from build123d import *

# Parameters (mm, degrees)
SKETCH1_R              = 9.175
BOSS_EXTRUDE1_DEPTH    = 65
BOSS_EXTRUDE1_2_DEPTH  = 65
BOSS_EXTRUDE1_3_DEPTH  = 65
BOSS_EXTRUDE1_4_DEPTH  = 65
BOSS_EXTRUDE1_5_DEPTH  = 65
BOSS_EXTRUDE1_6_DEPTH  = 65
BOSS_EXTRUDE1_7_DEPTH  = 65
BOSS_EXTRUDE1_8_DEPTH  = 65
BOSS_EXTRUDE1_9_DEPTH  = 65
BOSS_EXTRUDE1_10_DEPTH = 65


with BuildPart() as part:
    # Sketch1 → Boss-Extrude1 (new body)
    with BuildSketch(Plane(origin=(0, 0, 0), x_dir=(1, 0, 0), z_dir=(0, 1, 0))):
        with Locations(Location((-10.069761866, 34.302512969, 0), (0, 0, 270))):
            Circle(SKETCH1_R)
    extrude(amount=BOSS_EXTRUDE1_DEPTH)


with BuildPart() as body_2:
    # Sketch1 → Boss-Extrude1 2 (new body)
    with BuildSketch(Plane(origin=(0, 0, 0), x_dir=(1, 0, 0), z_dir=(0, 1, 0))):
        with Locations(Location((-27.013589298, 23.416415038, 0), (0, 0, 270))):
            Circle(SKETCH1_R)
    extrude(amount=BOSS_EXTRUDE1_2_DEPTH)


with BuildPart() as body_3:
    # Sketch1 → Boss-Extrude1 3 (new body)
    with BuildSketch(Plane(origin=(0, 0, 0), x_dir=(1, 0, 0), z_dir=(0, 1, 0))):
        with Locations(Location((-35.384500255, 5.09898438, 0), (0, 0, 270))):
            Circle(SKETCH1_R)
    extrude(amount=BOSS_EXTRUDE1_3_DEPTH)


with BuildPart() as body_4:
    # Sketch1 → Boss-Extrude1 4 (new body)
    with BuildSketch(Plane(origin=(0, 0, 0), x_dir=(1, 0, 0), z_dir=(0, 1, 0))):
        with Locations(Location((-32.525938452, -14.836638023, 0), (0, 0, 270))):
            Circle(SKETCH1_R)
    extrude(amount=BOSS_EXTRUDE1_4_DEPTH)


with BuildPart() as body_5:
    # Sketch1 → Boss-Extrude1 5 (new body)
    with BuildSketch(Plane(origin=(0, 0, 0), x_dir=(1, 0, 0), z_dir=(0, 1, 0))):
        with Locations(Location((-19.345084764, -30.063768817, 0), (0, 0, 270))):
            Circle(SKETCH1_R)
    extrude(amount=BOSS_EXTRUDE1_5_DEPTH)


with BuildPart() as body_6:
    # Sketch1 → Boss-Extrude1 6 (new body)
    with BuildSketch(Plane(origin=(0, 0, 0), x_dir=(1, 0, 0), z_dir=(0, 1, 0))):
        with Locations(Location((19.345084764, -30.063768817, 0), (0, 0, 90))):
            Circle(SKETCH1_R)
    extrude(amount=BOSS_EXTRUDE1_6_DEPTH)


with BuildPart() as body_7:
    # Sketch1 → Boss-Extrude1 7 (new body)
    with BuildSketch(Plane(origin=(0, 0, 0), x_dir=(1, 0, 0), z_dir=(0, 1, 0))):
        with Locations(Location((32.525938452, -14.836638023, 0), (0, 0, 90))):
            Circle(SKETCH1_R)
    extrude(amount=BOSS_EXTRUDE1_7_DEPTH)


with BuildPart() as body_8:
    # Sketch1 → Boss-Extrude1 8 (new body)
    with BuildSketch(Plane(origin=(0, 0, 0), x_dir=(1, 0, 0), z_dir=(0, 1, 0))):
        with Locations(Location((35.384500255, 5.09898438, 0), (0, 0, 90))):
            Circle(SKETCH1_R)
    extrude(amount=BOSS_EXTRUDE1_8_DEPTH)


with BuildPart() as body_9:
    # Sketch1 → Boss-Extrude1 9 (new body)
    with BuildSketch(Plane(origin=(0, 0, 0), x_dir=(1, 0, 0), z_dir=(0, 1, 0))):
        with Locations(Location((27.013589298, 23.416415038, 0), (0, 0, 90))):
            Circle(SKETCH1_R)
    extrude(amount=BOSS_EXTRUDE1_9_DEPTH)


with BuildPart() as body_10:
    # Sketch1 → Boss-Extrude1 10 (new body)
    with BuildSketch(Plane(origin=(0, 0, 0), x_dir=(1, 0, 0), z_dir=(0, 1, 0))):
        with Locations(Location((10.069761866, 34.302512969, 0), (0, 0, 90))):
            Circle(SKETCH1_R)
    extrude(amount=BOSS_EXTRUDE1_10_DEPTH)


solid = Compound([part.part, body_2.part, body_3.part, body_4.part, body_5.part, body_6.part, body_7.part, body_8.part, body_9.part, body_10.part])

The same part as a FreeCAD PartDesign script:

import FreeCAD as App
import Part
import Sketcher

V = App.Vector
Q = App.Units.Quantity

doc = App.newDocument("Part")
body = doc.addObject("PartDesign::Body", "Body")

# Sketch on XZ plane
sketch1 = doc.addObject("Sketcher::SketchObject", "Sketch")
body.addObject(sketch1)
sketch1.AttachmentSupport = (doc.XZ_Plane, [""])
sketch1.MapMode = "FlatFace"
sketch1.addGeometry(Part.Circle(V(-10.069762, -34.302513, 0), V(0, 0, 1), 9.175), False)
sketch1.addConstraint([
    Sketcher.Constraint("Diameter", 0, Q("18.35 mm")),
    Sketcher.Constraint("DistanceX", 0, 3, -1, 1, Q("10.069762 mm")),
    Sketcher.Constraint("DistanceY", 0, 3, -1, 1, Q("34.302513 mm")),
])
pad1 = doc.addObject("PartDesign::Pad", "Pad")
body.addObject(pad1)
pad1.Profile = sketch1
pad1.Length = 65
pad1.Reversed = True
body2 = doc.addObject("PartDesign::Body", "Body001")

# Sketch on XZ plane
sketch2 = doc.addObject("Sketcher::SketchObject", "Sketch001")
body2.addObject(sketch2)
sketch2.AttachmentSupport = (doc.getObject("XZ_Plane001"), [""])
sketch2.MapMode = "FlatFace"
sketch2.addGeometry(Part.Circle(V(-27.013589, -23.416415, 0), V(0, 0, 1), 9.175), False)
sketch2.addConstraint([
    Sketcher.Constraint("Diameter", 0, Q("18.35 mm")),
    Sketcher.Constraint("DistanceX", 0, 3, -1, 1, Q("27.013589 mm")),
    Sketcher.Constraint("DistanceY", 0, 3, -1, 1, Q("23.416415 mm")),
])
pad2 = doc.addObject("PartDesign::Pad", "Pad001")
body2.addObject(pad2)
pad2.Profile = sketch2
pad2.Length = 65
pad2.Reversed = True
body3 = doc.addObject("PartDesign::Body", "Body002")

# Sketch on XZ plane
sketch3 = doc.addObject("Sketcher::SketchObject", "Sketch002")
body3.addObject(sketch3)
sketch3.AttachmentSupport = (doc.getObject("XZ_Plane002"), [""])
sketch3.MapMode = "FlatFace"
sketch3.addGeometry(Part.Circle(V(-35.3845, -5.098984, 0), V(0, 0, 1), 9.175), False)
sketch3.addConstraint([
    Sketcher.Constraint("Diameter", 0, Q("18.35 mm")),
    Sketcher.Constraint("DistanceX", 0, 3, -1, 1, Q("35.3845 mm")),
    Sketcher.Constraint("DistanceY", 0, 3, -1, 1, Q("5.098984 mm")),
])
pad3 = doc.addObject("PartDesign::Pad", "Pad002")
body3.addObject(pad3)
pad3.Profile = sketch3
pad3.Length = 65
pad3.Reversed = True
body4 = doc.addObject("PartDesign::Body", "Body003")

# Sketch on XZ plane
sketch4 = doc.addObject("Sketcher::SketchObject", "Sketch003")
body4.addObject(sketch4)
sketch4.AttachmentSupport = (doc.getObject("XZ_Plane003"), [""])
sketch4.MapMode = "FlatFace"
sketch4.addGeometry(Part.Circle(V(-32.525938, 14.836638, 0), V(0, 0, 1), 9.175), False)
sketch4.addConstraint([
    Sketcher.Constraint("Diameter", 0, Q("18.35 mm")),
    Sketcher.Constraint("DistanceX", 0, 3, -1, 1, Q("32.525938 mm")),
    Sketcher.Constraint("DistanceY", -1, 1, 0, 3, Q("14.836638 mm")),
])
pad4 = doc.addObject("PartDesign::Pad", "Pad003")
body4.addObject(pad4)
pad4.Profile = sketch4
pad4.Length = 65
pad4.Reversed = True
body5 = doc.addObject("PartDesign::Body", "Body004")

# Sketch on XZ plane
sketch5 = doc.addObject("Sketcher::SketchObject", "Sketch004")
body5.addObject(sketch5)
sketch5.AttachmentSupport = (doc.getObject("XZ_Plane004"), [""])
sketch5.MapMode = "FlatFace"
sketch5.addGeometry(Part.Circle(V(-19.345085, 30.063769, 0), V(0, 0, 1), 9.175), False)
sketch5.addConstraint([
    Sketcher.Constraint("Diameter", 0, Q("18.35 mm")),
    Sketcher.Constraint("DistanceY", -1, 1, 0, 3, Q("30.063769 mm")),
    Sketcher.Constraint("DistanceX", 0, 3, -1, 1, Q("19.345085 mm")),
])
pad5 = doc.addObject("PartDesign::Pad", "Pad004")
body5.addObject(pad5)
pad5.Profile = sketch5
pad5.Length = 65
pad5.Reversed = True
body6 = doc.addObject("PartDesign::Body", "Body005")

# Sketch on XZ plane
sketch6 = doc.addObject("Sketcher::SketchObject", "Sketch005")
body6.addObject(sketch6)
sketch6.AttachmentSupport = (doc.getObject("XZ_Plane005"), [""])
sketch6.MapMode = "FlatFace"
sketch6.addGeometry(Part.Circle(V(19.345085, 30.063769, 0), V(0, 0, 1), 9.175), False)
sketch6.addConstraint([
    Sketcher.Constraint("Diameter", 0, Q("18.35 mm")),
    Sketcher.Constraint("DistanceY", -1, 1, 0, 3, Q("30.063769 mm")),
    Sketcher.Constraint("DistanceX", -1, 1, 0, 3, Q("19.345085 mm")),
])
pad6 = doc.addObject("PartDesign::Pad", "Pad005")
body6.addObject(pad6)
pad6.Profile = sketch6
pad6.Length = 65
pad6.Reversed = True
body7 = doc.addObject("PartDesign::Body", "Body006")

# Sketch on XZ plane
sketch7 = doc.addObject("Sketcher::SketchObject", "Sketch006")
body7.addObject(sketch7)
sketch7.AttachmentSupport = (doc.getObject("XZ_Plane006"), [""])
sketch7.MapMode = "FlatFace"
sketch7.addGeometry(Part.Circle(V(32.525938, 14.836638, 0), V(0, 0, 1), 9.175), False)
sketch7.addConstraint([
    Sketcher.Constraint("Diameter", 0, Q("18.35 mm")),
    Sketcher.Constraint("DistanceX", -1, 1, 0, 3, Q("32.525938 mm")),
    Sketcher.Constraint("DistanceY", -1, 1, 0, 3, Q("14.836638 mm")),
])
pad7 = doc.addObject("PartDesign::Pad", "Pad006")
body7.addObject(pad7)
pad7.Profile = sketch7
pad7.Length = 65
pad7.Reversed = True
body8 = doc.addObject("PartDesign::Body", "Body007")

# Sketch on XZ plane
sketch8 = doc.addObject("Sketcher::SketchObject", "Sketch007")
body8.addObject(sketch8)
sketch8.AttachmentSupport = (doc.getObject("XZ_Plane007"), [""])
sketch8.MapMode = "FlatFace"
sketch8.addGeometry(Part.Circle(V(35.3845, -5.098984, 0), V(0, 0, 1), 9.175), False)
sketch8.addConstraint([
    Sketcher.Constraint("Diameter", 0, Q("18.35 mm")),
    Sketcher.Constraint("DistanceX", -1, 1, 0, 3, Q("35.3845 mm")),
    Sketcher.Constraint("DistanceY", 0, 3, -1, 1, Q("5.098984 mm")),
])
pad8 = doc.addObject("PartDesign::Pad", "Pad007")
body8.addObject(pad8)
pad8.Profile = sketch8
pad8.Length = 65
pad8.Reversed = True
body9 = doc.addObject("PartDesign::Body", "Body008")

# Sketch on XZ plane
sketch9 = doc.addObject("Sketcher::SketchObject", "Sketch008")
body9.addObject(sketch9)
sketch9.AttachmentSupport = (doc.getObject("XZ_Plane008"), [""])
sketch9.MapMode = "FlatFace"
sketch9.addGeometry(Part.Circle(V(27.013589, -23.416415, 0), V(0, 0, 1), 9.175), False)
sketch9.addConstraint([
    Sketcher.Constraint("Diameter", 0, Q("18.35 mm")),
    Sketcher.Constraint("DistanceX", -1, 1, 0, 3, Q("27.013589 mm")),
    Sketcher.Constraint("DistanceY", 0, 3, -1, 1, Q("23.416415 mm")),
])
pad9 = doc.addObject("PartDesign::Pad", "Pad008")
body9.addObject(pad9)
pad9.Profile = sketch9
pad9.Length = 65
pad9.Reversed = True
body10 = doc.addObject("PartDesign::Body", "Body009")

# Sketch on XZ plane
sketch10 = doc.addObject("Sketcher::SketchObject", "Sketch009")
body10.addObject(sketch10)
sketch10.AttachmentSupport = (doc.getObject("XZ_Plane009"), [""])
sketch10.MapMode = "FlatFace"
sketch10.addGeometry(Part.Circle(V(10.069762, -34.302513, 0), V(0, 0, 1), 9.175), False)
sketch10.addConstraint([
    Sketcher.Constraint("Diameter", 0, Q("18.35 mm")),
    Sketcher.Constraint("DistanceX", -1, 1, 0, 3, Q("10.069762 mm")),
    Sketcher.Constraint("DistanceY", 0, 3, -1, 1, Q("34.302513 mm")),
])
pad10 = doc.addObject("PartDesign::Pad", "Pad009")
body10.addObject(pad10)
pad10.Profile = sketch10
pad10.Length = 65
pad10.Reversed = True

doc.recompute()
